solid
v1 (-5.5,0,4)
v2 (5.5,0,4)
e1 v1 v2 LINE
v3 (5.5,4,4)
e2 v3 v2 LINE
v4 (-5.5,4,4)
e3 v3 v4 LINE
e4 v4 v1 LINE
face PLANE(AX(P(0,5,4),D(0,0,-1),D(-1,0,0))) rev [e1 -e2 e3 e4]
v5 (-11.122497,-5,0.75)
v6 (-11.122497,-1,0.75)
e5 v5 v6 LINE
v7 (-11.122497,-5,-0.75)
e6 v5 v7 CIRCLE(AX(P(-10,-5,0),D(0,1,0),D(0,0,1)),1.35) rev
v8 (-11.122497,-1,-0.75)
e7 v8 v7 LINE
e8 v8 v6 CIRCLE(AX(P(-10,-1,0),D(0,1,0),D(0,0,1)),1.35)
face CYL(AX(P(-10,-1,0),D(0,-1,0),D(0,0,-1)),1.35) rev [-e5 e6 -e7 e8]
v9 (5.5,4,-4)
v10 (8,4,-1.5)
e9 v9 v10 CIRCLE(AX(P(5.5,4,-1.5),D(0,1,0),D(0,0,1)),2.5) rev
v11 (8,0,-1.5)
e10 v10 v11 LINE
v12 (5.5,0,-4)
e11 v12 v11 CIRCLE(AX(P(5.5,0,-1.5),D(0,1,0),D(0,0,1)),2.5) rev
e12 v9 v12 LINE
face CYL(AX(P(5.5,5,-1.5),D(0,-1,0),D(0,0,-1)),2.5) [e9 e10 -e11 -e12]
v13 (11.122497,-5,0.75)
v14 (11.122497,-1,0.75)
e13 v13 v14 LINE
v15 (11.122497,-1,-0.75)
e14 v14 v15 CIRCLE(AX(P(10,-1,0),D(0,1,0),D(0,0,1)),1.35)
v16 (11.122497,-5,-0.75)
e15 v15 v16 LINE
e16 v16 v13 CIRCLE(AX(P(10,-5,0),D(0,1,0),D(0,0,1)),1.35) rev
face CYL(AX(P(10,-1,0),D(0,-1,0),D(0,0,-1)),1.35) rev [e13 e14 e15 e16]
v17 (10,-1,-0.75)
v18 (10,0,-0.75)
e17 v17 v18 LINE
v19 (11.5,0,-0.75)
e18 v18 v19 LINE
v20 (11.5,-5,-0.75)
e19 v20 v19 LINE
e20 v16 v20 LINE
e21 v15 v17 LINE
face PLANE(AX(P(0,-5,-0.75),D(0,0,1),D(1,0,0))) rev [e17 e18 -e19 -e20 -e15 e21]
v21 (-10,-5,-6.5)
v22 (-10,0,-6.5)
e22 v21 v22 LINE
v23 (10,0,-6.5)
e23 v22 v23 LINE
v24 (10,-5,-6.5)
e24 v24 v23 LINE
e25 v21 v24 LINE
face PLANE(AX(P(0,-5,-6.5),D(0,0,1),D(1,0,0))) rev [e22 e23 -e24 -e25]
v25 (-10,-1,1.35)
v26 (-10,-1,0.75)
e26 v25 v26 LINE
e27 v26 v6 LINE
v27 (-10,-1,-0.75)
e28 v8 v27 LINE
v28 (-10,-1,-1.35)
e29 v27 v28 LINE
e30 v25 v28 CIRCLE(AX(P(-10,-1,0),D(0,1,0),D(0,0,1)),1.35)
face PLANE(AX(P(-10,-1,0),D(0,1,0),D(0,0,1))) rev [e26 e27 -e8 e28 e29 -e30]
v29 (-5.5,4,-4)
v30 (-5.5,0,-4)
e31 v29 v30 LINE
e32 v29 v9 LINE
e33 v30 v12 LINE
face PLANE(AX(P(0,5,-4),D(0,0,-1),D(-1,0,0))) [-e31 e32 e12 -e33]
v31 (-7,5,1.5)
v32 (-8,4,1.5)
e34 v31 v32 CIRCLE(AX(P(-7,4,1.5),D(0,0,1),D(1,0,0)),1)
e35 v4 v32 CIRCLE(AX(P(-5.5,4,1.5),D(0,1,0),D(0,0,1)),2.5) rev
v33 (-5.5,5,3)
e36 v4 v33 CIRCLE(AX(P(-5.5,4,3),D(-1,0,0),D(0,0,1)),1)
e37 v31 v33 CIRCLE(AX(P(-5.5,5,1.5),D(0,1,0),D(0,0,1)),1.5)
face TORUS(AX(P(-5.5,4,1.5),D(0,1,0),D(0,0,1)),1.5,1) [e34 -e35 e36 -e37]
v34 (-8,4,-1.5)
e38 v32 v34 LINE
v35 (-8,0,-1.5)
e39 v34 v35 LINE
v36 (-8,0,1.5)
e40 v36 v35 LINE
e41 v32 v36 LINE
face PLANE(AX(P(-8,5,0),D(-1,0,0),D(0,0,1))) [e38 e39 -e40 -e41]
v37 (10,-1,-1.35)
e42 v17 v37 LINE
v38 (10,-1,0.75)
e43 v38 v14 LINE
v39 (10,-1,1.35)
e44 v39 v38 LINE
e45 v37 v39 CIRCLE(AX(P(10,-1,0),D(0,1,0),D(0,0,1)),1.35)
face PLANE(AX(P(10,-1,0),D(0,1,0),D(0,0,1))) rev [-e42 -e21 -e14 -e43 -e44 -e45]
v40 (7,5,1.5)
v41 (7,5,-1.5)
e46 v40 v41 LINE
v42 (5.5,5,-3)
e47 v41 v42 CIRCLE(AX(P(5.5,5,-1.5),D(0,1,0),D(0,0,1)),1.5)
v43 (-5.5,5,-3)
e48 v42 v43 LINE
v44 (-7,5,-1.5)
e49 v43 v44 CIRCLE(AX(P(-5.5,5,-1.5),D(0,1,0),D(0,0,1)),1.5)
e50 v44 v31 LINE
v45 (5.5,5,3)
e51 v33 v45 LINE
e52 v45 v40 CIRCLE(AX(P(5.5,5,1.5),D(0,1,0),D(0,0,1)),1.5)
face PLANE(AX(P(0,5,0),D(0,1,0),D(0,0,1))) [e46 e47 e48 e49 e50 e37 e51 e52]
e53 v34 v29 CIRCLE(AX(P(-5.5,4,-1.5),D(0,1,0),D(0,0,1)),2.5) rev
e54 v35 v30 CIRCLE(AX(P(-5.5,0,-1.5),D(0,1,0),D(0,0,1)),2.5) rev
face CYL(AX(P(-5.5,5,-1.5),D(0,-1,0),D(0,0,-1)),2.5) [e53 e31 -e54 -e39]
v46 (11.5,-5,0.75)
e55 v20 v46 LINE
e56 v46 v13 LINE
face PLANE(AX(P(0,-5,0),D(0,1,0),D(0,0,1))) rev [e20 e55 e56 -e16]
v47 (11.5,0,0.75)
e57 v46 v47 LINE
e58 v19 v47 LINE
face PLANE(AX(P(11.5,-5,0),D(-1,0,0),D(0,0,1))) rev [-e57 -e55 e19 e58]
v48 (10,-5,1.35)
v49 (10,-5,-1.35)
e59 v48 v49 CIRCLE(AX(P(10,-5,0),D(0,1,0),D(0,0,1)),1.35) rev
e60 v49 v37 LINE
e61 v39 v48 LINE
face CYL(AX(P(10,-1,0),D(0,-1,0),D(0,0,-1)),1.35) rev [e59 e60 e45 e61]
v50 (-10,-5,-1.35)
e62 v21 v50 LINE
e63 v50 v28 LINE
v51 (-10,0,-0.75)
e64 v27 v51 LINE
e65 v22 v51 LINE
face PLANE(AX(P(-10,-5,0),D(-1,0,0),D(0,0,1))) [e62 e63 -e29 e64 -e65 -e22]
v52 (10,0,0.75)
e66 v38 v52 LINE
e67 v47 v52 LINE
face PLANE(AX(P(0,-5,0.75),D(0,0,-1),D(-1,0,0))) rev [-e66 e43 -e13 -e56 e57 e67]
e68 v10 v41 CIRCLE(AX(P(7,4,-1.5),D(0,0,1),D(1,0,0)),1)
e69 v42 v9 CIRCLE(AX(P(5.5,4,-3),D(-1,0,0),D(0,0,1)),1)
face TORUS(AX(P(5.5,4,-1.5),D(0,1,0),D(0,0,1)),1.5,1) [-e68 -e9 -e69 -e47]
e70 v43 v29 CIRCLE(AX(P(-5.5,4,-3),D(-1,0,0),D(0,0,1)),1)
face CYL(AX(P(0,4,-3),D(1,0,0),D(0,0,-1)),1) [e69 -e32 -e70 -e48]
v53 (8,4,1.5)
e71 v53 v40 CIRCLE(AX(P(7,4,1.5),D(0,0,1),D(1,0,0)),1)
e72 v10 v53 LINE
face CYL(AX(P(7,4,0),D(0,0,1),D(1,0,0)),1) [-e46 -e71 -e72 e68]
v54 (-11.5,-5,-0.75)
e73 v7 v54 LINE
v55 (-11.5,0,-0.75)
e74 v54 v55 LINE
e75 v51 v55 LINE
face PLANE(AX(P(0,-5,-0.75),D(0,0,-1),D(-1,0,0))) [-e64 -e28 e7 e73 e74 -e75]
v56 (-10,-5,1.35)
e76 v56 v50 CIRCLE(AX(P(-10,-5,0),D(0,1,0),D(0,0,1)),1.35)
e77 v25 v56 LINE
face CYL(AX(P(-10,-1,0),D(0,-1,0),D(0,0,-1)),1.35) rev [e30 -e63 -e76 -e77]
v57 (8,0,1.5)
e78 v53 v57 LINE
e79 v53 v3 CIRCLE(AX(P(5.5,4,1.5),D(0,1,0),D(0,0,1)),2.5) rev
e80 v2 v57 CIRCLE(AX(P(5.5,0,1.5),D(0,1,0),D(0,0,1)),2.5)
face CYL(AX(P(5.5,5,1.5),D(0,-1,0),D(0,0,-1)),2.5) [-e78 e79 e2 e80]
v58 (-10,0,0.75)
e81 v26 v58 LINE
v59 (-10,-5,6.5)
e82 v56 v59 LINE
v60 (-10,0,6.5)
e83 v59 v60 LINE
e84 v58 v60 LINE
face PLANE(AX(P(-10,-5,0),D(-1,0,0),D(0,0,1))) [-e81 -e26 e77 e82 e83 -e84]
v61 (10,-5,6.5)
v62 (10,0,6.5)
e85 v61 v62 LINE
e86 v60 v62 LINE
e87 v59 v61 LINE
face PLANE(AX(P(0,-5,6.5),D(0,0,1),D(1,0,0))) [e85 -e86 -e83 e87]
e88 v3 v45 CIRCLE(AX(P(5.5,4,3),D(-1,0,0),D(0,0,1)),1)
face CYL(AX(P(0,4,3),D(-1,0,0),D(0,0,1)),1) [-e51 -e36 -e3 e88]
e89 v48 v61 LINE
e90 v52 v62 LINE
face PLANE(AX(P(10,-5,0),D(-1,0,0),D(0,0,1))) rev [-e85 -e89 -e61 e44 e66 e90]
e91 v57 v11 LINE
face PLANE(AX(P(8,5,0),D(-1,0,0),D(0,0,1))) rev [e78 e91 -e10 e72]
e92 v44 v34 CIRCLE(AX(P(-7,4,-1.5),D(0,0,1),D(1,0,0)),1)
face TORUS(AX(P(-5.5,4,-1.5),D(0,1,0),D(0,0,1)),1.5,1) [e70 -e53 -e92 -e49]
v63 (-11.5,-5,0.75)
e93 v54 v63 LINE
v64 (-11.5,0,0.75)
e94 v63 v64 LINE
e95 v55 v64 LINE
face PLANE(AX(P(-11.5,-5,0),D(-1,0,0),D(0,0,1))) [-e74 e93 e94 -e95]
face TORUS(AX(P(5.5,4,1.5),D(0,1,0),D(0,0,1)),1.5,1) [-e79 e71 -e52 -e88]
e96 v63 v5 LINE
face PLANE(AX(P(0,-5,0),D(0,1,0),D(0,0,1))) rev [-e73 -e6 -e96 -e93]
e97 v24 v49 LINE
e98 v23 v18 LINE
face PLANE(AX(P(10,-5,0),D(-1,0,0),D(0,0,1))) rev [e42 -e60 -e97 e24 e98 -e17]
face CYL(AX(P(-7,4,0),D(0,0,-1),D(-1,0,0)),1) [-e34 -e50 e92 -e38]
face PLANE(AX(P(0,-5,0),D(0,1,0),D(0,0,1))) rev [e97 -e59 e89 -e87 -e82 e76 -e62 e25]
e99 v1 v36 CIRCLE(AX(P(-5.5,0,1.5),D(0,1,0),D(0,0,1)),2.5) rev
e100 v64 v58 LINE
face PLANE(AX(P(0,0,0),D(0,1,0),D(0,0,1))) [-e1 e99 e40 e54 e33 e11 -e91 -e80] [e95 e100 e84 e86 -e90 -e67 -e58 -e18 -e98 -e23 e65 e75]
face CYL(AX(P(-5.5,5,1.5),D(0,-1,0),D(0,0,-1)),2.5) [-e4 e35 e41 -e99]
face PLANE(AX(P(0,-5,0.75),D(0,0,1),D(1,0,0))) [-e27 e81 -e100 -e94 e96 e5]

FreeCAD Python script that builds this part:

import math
import FreeCAD as App
import Part
import Sketcher

V = App.Vector
Q = App.Units.Quantity


def edges_at(feature, points):
    """Names of the edges that pass closest to the given points."""
    edges = feature.Shape.Edges
    near = lambda p: min(range(len(edges)), key=lambda i: edges[i].distToShape(Part.Vertex(*p))[0])
    return sorted({f"Edge{near(p) + 1}" for p in points})

doc = App.newDocument("Part")
params = doc.addObject("Spreadsheet::Sheet", "Params")
for row, (alias, value) in enumerate([
    ("sketch1_radius", "2.5 mm"),
    ("sketch1_width", "11 mm"),
    ("sketch1_height", "3 mm"),
    ("pad1_length", "5 mm"),
    ("sketch2_width", "20 mm"),
    ("sketch2_width2", "1.5 mm"),
    ("pad2_length", "5 mm"),
    ("fillet_radius", "1 mm"),
    ("sketch3_diameter", "2.7 mm"),
    ("pocket1_length", "4 mm"),
], start=1):
    params.set(f"A{row}", alias)
    params.set(f"B{row}", "=" + value)
    params.setAlias(f"B{row}", alias)

body = doc.addObject("PartDesign::Body", "Body")

# Sketch on XZ plane
sketch1 = body.newObject("Sketcher::SketchObject", "Sketch")
sketch1.AttachmentSupport = (doc.getObject("XZ_Plane"), [""])
sketch1.MapMode = "FlatFace"
sketch1.addGeometry(Part.ArcOfCircle(Part.Circle(V(-5.5, -1.5, 0), V(0, 0, 1), 2.5), math.radians(180), math.radians(270)), False)
sketch1.addGeometry(Part.LineSegment(V(-8, -1.5, 0), V(-8, 1.5, 0)), False)
sketch1.addGeometry(Part.ArcOfCircle(Part.Circle(V(-5.5, 1.5, 0), V(0, 0, 1), 2.5), math.radians(90), math.radians(180)), False)
sketch1.addGeometry(Part.LineSegment(V(-5.5, 4, 0), V(5.5, 4, 0)), False)
sketch1.addGeometry(Part.ArcOfCircle(Part.Circle(V(5.5, 1.5, 0), V(0, 0, 1), 2.5), math.radians(0), math.radians(90)), False)
sketch1.addGeometry(Part.LineSegment(V(8, 1.5, 0), V(8, -1.5, 0)), False)
sketch1.addGeometry(Part.ArcOfCircle(Part.Circle(V(5.5, -1.5, 0), V(0, 0, 1), 2.5), math.radians(-90), math.radians(0)), False)
sketch1.addGeometry(Part.LineSegment(V(5.5, -4, 0), V(-5.5, -4, 0)), False)
sketch1.addConstraint(Sketcher.Constraint("Tangent", 0, 1, 1, 1))
sketch1.addConstraint(Sketcher.Constraint("Tangent", 1, 2, 2, 2))
sketch1.addConstraint(Sketcher.Constraint("Tangent", 2, 1, 3, 1))
sketch1.addConstraint(Sketcher.Constraint("Tangent", 3, 2, 4, 2))
sketch1.addConstraint(Sketcher.Constraint("Tangent", 4, 1, 5, 1))
sketch1.addConstraint(Sketcher.Constraint("Tangent", 5, 2, 6, 2))
sketch1.addConstraint(Sketcher.Constraint("Tangent", 6, 1, 7, 1))
sketch1.addConstraint(Sketcher.Constraint("Tangent", 7, 2, 0, 2))
sketch1.addConstraint(Sketcher.Constraint("Vertical", 1))
sketch1.addConstraint(Sketcher.Constraint("Horizontal", 3))
sketch1.addConstraint(Sketcher.Constraint("Vertical", 5))
sketch1.addConstraint(Sketcher.Constraint("Horizontal", 7))
sketch1.addConstraint(Sketcher.Constraint("Equal", 0, 2))
sketch1.addConstraint(Sketcher.Constraint("Equal", 2, 4))
sketch1.addConstraint(Sketcher.Constraint("Equal", 4, 6))
sketch1.addConstraint(Sketcher.Constraint("Symmetric", 0, 3, 4, 3, -1, 1))
sketch1.addConstraint(Sketcher.Constraint("Radius", 0, Q("2.5 mm")))
sketch1.addConstraint(Sketcher.Constraint("DistanceX", 3, 1, 3, 2, Q("11 mm")))
sketch1.addConstraint(Sketcher.Constraint("DistanceY", 1, 1, 1, 2, Q("3 mm")))
sketch1.setExpression("Constraints[16]", "Params.sketch1_radius")
sketch1.setExpression("Constraints[17]", "Params.sketch1_width")
sketch1.setExpression("Constraints[18]", "Params.sketch1_height")
pad1 = body.newObject("PartDesign::Pad", "Pad")
pad1.Profile = sketch1
pad1.setExpression("Length", "Params.pad1_length")
pad1.Reversed = True

# Sketch on XZ plane
sketch2 = body.newObject("Sketcher::SketchObject", "Sketch001")
sketch2.AttachmentSupport = (doc.getObject("XZ_Plane"), [""])
sketch2.MapMode = "FlatFace"
sketch2.AttachmentOffset = App.Placement(V(0, 0, 5), App.Rotation())
sketch2.addGeometry(Part.LineSegment(V(-10, -6.5, 0), V(-10, -0.8, 0)), False)
sketch2.addGeometry(Part.LineSegment(V(-10, -0.8, 0), V(-11.5, -0.8, 0)), False)
sketch2.addGeometry(Part.LineSegment(V(-11.5, -0.8, 0), V(-11.5, 0.8, 0)), False)
sketch2.addGeometry(Part.LineSegment(V(-11.5, 0.8, 0), V(-10, 0.8, 0)), False)
sketch2.addGeometry(Part.LineSegment(V(-10, 0.8, 0), V(-10, 6.5, 0)), False)
sketch2.addGeometry(Part.LineSegment(V(-10, 6.5, 0), V(10, 6.5, 0)), False)
sketch2.addGeometry(Part.LineSegment(V(10, 6.5, 0), V(10, 0.8, 0)), False)
sketch2.addGeometry(Part.LineSegment(V(10, 0.8, 0), V(11.5, 0.8, 0)), False)
sketch2.addGeometry(Part.LineSegment(V(11.5, 0.8, 0), V(11.5, -0.8, 0)), False)
sketch2.addGeometry(Part.LineSegment(V(11.5, -0.8, 0), V(10, -0.8, 0)), False)
sketch2.addGeometry(Part.LineSegment(V(10, -0.8, 0), V(10, -6.5, 0)), False)
sketch2.addGeometry(Part.LineSegment(V(10, -6.5, 0), V(-10, -6.5, 0)), False)
sketch2.addConstraint(Sketcher.Constraint("Coincident", 0, 2, 1, 1))
sketch2.addConstraint(Sketcher.Constraint("Coincident", 1, 2, 2, 1))
sketch2.addConstraint(Sketcher.Constraint("Coincident", 2, 2, 3, 1))
sketch2.addConstraint(Sketcher.Constraint("Coincident", 3, 2, 4, 1))
sketch2.addConstraint(Sketcher.Constraint("Coincident", 4, 2, 5, 1))
sketch2.addConstraint(Sketcher.Constraint("Coincident", 5, 2, 6, 1))
sketch2.addConstraint(Sketcher.Constraint("Coincident", 6, 2, 7, 1))
sketch2.addConstraint(Sketcher.Constraint("Coincident", 7, 2, 8, 1))
sketch2.addConstraint(Sketcher.Constraint("Coincident", 8, 2, 9, 1))
sketch2.addConstraint(Sketcher.Constraint("Coincident", 9, 2, 10, 1))
sketch2.addConstraint(Sketcher.Constraint("Coincident", 10, 2, 11, 1))
sketch2.addConstraint(Sketcher.Constraint("Coincident", 11, 2, 0, 1))
sketch2.addConstraint(Sketcher.Constraint("Vertical", 0))
sketch2.addConstraint(Sketcher.Constraint("Horizontal", 1))
sketch2.addConstraint(Sketcher.Constraint("Vertical", 2))
sketch2.addConstraint(Sketcher.Constraint("Horizontal", 3))
sketch2.addConstraint(Sketcher.Constraint("Vertical", 4))
sketch2.addConstraint(Sketcher.Constraint("Horizontal", 5))
sketch2.addConstraint(Sketcher.Constraint("Vertical", 6))
sketch2.addConstraint(Sketcher.Constraint("Horizontal", 7))
sketch2.addConstraint(Sketcher.Constraint("Vertical", 8))
sketch2.addConstraint(Sketcher.Constraint("Horizontal", 9))
sketch2.addConstraint(Sketcher.Constraint("Vertical", 10))
sketch2.addConstraint(Sketcher.Constraint("Horizontal", 11))
sketch2.addConstraint(Sketcher.Constraint("Symmetric", 0, 2, 6, 2, -1, 1))
sketch2.addConstraint(Sketcher.Constraint("Symmetric", 2, 2, 8, 2, -1, 1))
sketch2.addConstraint(Sketcher.Constraint("Symmetric", 4, 2, 10, 2, -1, 1))
sketch2.addConstraint(Sketcher.Constraint("Symmetric", 3, 2, 6, 2, -2))
sketch2.addConstraint(Sketcher.Constraint("Equal", 9, 2))
sketch2.addConstraint(Sketcher.Constraint("DistanceX", 5, 1, 5, 2, Q("20 mm")))
sketch2.addConstraint(Sketcher.Constraint("DistanceX", 1, 2, 1, 1, Q("1.5 mm")))
sketch2.addConstraint(Sketcher.Constraint("DistanceY", 10, 2, 5, 2, Q("13 mm")))
sketch2.setExpression("Constraints[29]", "Params.sketch2_width")
sketch2.setExpression("Constraints[30]", "Params.sketch2_width2")
pad2 = body.newObject("PartDesign::Pad", "Pad001")
pad2.Profile = sketch2
pad2.setExpression("Length", "Params.pad2_length")
pad2.Reversed = True
doc.recompute()

fillet = body.newObject("PartDesign::Fillet", "Fillet")
fillet.Base = (pad2, edges_at(pad2, [
    (-8, 5, 0),
    (-7.268, 5, 3.268),
    (0, 5, 4),
    (7.268, 5, 3.268),
    (8, 5, 0),
    (7.268, 5, -3.268),
    (0, 5, -4),
    (-7.268, 5, -3.268),
]))
fillet.setExpression("Radius", "Params.fillet_radius")

# Sketch on XZ plane
sketch3 = body.newObject("Sketcher::SketchObject", "Sketch002")
sketch3.AttachmentSupport = (doc.getObject("XZ_Plane"), [""])
sketch3.MapMode = "FlatFace"
sketch3.AttachmentOffset = App.Placement(V(0, 0, 5), App.Rotation())
sketch3.addGeometry(Part.Circle(V(10, 0, 0), V(0, 0, 1), 1.4), False)
sketch3.addGeometry(Part.Circle(V(-10, 0, 0), V(0, 0, 1), 1.4), False)
sketch3.addConstraint(Sketcher.Constraint("Equal", 0, 1))
sketch3.addConstraint(Sketcher.Constraint("Symmetric", 0, 3, 1, 3, -1, 1))
sketch3.addConstraint(Sketcher.Constraint("PointOnObject", 0, 3, -1))
sketch3.addConstraint(Sketcher.Constraint("Diameter", 0, Q("2.7 mm")))
sketch3.addConstraint(Sketcher.Constraint("DistanceX", -1, 1, 0, 3, Q("10 mm")))
sketch3.setExpression("Constraints[3]", "Params.sketch3_diameter")
pocket1 = body.newObject("PartDesign::Pocket", "Pocket")
pocket1.Profile = sketch3
pocket1.setExpression("Length", "Params.pocket1_length")

doc.recompute()
